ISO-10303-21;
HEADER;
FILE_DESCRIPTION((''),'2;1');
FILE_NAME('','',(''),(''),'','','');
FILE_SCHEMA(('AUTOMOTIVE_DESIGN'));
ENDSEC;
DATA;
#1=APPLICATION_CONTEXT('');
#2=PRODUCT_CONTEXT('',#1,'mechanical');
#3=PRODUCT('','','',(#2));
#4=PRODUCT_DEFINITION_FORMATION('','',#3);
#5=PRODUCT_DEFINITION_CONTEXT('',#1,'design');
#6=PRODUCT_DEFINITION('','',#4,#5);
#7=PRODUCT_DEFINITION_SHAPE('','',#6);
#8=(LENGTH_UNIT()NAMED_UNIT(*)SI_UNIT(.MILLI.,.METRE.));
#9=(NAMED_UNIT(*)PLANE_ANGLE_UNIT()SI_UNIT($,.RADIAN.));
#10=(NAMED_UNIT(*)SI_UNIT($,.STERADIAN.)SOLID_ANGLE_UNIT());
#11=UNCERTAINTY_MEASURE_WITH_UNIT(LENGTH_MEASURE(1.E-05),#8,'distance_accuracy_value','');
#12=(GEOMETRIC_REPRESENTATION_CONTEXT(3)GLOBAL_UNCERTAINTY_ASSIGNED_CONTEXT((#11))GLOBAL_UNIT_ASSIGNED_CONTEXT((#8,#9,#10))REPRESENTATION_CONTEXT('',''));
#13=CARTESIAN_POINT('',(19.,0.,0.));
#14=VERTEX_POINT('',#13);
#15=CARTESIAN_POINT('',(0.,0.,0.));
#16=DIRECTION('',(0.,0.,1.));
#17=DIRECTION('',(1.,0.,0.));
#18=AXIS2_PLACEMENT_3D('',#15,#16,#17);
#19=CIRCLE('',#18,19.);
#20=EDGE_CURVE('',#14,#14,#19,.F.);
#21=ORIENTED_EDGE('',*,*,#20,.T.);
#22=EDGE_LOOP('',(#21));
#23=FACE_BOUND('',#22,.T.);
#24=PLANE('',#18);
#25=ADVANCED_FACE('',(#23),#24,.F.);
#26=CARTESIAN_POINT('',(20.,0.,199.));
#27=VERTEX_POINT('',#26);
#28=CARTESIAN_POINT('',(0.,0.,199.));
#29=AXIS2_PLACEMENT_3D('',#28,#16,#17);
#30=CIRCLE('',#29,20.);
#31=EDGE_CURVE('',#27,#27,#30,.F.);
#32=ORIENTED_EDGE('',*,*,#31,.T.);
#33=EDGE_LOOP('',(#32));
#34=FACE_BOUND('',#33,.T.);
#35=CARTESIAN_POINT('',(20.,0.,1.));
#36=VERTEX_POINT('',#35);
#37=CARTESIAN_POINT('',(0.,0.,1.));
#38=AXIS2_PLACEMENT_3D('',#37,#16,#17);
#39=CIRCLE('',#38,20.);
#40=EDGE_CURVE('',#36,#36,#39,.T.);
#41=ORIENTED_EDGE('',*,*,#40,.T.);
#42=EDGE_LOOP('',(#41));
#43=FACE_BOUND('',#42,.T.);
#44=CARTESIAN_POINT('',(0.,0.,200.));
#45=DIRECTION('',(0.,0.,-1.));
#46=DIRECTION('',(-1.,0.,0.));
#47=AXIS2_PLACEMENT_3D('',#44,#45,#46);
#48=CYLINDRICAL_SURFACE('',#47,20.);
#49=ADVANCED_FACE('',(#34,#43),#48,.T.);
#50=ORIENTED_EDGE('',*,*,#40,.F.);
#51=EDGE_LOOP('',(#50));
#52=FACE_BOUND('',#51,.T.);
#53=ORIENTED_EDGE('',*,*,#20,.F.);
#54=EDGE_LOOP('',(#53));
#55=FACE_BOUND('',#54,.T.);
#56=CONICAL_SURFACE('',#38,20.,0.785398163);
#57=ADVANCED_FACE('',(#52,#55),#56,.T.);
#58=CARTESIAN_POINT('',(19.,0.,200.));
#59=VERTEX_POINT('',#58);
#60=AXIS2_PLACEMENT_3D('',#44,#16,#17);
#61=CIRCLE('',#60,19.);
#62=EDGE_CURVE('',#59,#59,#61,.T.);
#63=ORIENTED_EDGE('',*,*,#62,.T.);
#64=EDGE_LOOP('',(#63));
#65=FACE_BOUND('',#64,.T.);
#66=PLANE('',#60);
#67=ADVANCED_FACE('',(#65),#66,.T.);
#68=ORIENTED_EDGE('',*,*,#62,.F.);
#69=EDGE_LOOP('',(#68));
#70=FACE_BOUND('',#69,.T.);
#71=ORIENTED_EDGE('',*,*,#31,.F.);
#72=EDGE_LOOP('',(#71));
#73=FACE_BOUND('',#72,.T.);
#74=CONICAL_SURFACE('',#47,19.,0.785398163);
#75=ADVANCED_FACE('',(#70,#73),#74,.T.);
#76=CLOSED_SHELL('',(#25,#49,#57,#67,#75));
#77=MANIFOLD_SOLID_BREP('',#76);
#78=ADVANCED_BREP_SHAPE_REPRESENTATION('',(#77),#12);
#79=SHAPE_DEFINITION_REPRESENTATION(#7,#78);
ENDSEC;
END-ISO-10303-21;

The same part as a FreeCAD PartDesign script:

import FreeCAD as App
import Part
import Sketcher
from FreeCAD import Vector
Q = App.Units.Quantity


def edges_at(feature, points):
    """Names of the edges that pass closest to the given points."""
    edges = feature.Shape.Edges
    near = lambda p: min(range(len(edges)), key=lambda i: edges[i].distToShape(Part.Vertex(*p))[0])
    return sorted({f"Edge{near(p) + 1}" for p in points})

doc = App.newDocument("Part")
body = doc.addObject("PartDesign::Body", "Body")

sketch1 = body.newObject("Sketcher::SketchObject", "Sketch")
sketch1.AttachmentSupport = (doc.getObject("XY_Plane"), [""])
sketch1.MapMode = "FlatFace"
sketch1.addGeometry(Part.Circle(Vector(0, 0, 0), Vector(0, 0, 1), 20), False)
sketch1.addConstraint(Sketcher.Constraint("Coincident", 0, 3, -1, 1))
sketch1.addConstraint(Sketcher.Constraint("Diameter", 0, Q("40 mm")))
pad1 = body.newObject("PartDesign::Pad", "Pad")
pad1.Profile = sketch1
pad1.Length = 200
doc.recompute()

chamfer = body.newObject("PartDesign::Chamfer", "Chamfer")
chamfer.Base = (pad1, edges_at(pad1, [(-20, 0, 0), (-20, 0, 200)]))
chamfer.Size = 1

doc.recompute()
